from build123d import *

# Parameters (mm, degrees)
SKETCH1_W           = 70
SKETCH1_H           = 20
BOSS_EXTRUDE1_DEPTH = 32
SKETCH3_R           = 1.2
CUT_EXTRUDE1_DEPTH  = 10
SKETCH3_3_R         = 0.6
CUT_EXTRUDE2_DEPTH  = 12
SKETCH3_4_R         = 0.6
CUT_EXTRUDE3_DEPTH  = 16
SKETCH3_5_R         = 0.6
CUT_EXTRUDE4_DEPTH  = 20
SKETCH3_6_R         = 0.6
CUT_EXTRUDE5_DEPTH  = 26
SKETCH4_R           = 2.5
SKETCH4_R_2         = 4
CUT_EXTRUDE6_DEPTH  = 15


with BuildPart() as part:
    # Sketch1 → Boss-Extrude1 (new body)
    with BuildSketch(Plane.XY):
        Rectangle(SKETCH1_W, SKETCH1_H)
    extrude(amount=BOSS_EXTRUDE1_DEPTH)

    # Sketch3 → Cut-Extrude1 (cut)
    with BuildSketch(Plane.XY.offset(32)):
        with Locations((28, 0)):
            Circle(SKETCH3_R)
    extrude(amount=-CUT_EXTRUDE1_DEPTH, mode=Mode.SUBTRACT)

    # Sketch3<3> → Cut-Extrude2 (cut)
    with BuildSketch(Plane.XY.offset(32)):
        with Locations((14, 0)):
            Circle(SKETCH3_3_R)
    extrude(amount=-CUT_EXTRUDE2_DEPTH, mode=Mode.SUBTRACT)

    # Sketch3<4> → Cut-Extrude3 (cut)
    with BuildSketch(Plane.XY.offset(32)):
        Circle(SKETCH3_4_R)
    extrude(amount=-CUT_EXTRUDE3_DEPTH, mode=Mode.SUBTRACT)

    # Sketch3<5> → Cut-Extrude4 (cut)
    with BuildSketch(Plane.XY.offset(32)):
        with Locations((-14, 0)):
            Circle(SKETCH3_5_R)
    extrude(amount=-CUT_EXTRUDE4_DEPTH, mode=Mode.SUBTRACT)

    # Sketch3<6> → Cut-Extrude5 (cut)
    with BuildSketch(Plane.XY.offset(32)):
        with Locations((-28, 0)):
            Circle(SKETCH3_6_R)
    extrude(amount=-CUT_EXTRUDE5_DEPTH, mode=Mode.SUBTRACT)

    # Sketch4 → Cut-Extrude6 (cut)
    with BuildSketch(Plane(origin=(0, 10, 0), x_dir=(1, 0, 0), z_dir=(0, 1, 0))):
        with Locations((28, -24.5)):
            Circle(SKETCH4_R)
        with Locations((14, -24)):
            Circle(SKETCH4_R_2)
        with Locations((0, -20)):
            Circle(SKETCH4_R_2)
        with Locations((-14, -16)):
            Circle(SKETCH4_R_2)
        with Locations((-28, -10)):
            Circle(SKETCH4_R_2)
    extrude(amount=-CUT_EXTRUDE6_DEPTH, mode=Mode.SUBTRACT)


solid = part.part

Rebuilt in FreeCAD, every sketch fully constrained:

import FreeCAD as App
import Part
import Sketcher
Q = App.Units.Quantity

doc = App.newDocument("Part")
params = doc.addObject("Spreadsheet::Sheet", "Params")
for row, (alias, value) in enumerate([
    ("sketch1_width", "70 mm"),
    ("sketch1_height", "20 mm"),
    ("pad1_length", "32 mm"),
    ("sketch2_diameter", "2.4 mm"),
    ("pocket1_length", "10 mm"),
    ("sketch3_diameter", "1.2 mm"),
    ("pocket2_length", "12 mm"),
    ("sketch4_diameter", "1.2 mm"),
    ("pocket3_length", "16 mm"),
    ("sketch5_diameter", "1.2 mm"),
    ("pocket4_length", "20 mm"),
    ("sketch6_diameter", "1.2 mm"),
    ("pocket5_length", "26 mm"),
    ("sketch7_diameter", "5 mm"),
    ("sketch7_diameter2", "8 mm"),
    ("pocket6_length", "15 mm"),
], start=1):
    params.set(f"A{row}", alias)
    params.set(f"B{row}", "=" + value)
    params.setAlias(f"B{row}", alias)

body = doc.addObject("PartDesign::Body", "Body")

# Sketch on XY plane
sketch1 = body.newObject("Sketcher::SketchObject", "Sketch")
sketch1.AttachmentSupport = (doc.getObject("XY_Plane"), [""])
sketch1.MapMode = "FlatFace"
sketch1.addGeometry([
    Part.LineSegment(App.Vector(-35, 10, 0), App.Vector(-35, -10, 0)),
    Part.LineSegment(App.Vector(-35, -10, 0), App.Vector(35, -10, 0)),
    Part.LineSegment(App.Vector(35, -10, 0), App.Vector(35, 10, 0)),
    Part.LineSegment(App.Vector(35, 10, 0), App.Vector(-35, 10, 0)),
], False)
sketch1.addConstraint([
    Sketcher.Constraint("Coincident", 0, 2, 1, 1),
    Sketcher.Constraint("Coincident", 1, 2, 2, 1),
    Sketcher.Constraint("Coincident", 2, 2, 3, 1),
    Sketcher.Constraint("Coincident", 3, 2, 0, 1),
    Sketcher.Constraint("Vertical", 0),
    Sketcher.Constraint("Horizontal", 1),
    Sketcher.Constraint("Vertical", 2),
    Sketcher.Constraint("Horizontal", 3),
    Sketcher.Constraint("Symmetric", 0, 2, 2, 2, -1, 1),
    Sketcher.Constraint("DistanceX", 1, 1, 1, 2, Q("70 mm")),
    Sketcher.Constraint("DistanceY", 0, 2, 0, 1, Q("20 mm")),
])
sketch1.setExpression("Constraints[9]", "Params.sketch1_width")
sketch1.setExpression("Constraints[10]", "Params.sketch1_height")
pad1 = body.newObject("PartDesign::Pad", "Pad")
pad1.Profile = sketch1
pad1.setExpression("Length", "Params.pad1_length")

# Sketch on XY plane
sketch2 = body.newObject("Sketcher::SketchObject", "Sketch001")
sketch2.AttachmentSupport = (doc.getObject("XY_Plane"), [""])
sketch2.MapMode = "FlatFace"
sketch2.AttachmentOffset = App.Placement(App.Vector(0, 0, 32), App.Rotation())
sketch2.addGeometry(Part.Circle(App.Vector(28, 0, 0), App.Vector(0, 0, 1), 1.2), False)
sketch2.addConstraint([
    Sketcher.Constraint("PointOnObject", 0, 3, -1),
    Sketcher.Constraint("Diameter", 0, Q("2.4 mm")),
    Sketcher.Constraint("DistanceX", -1, 1, 0, 3, Q("28 mm")),
])
sketch2.setExpression("Constraints[1]", "Params.sketch2_diameter")
pocket1 = body.newObject("PartDesign::Pocket", "Pocket")
pocket1.Profile = sketch2
pocket1.setExpression("Length", "Params.pocket1_length")

# Sketch on XY plane
sketch3 = body.newObject("Sketcher::SketchObject", "Sketch002")
sketch3.AttachmentSupport = (doc.getObject("XY_Plane"), [""])
sketch3.MapMode = "FlatFace"
sketch3.AttachmentOffset = App.Placement(App.Vector(0, 0, 32), App.Rotation())
sketch3.addGeometry(Part.Circle(App.Vector(14, 0, 0), App.Vector(0, 0, 1), 0.6), False)
sketch3.addConstraint([
    Sketcher.Constraint("PointOnObject", 0, 3, -1),
    Sketcher.Constraint("Diameter", 0, Q("1.2 mm")),
    Sketcher.Constraint("DistanceX", -1, 1, 0, 3, Q("14 mm")),
])
sketch3.setExpression("Constraints[1]", "Params.sketch3_diameter")
pocket2 = body.newObject("PartDesign::Pocket", "Pocket001")
pocket2.Profile = sketch3
pocket2.setExpression("Length", "Params.pocket2_length")

# Sketch on XY plane
sketch4 = body.newObject("Sketcher::SketchObject", "Sketch003")
sketch4.AttachmentSupport = (doc.getObject("XY_Plane"), [""])
sketch4.MapMode = "FlatFace"
sketch4.AttachmentOffset = App.Placement(App.Vector(0, 0, 32), App.Rotation())
sketch4.addGeometry(Part.Circle(App.Vector(0, 0, 0), App.Vector(0, 0, 1), 0.6), False)
sketch4.addConstraint([
    Sketcher.Constraint("Coincident", 0, 3, -1, 1),
    Sketcher.Constraint("Diameter", 0, Q("1.2 mm")),
])
sketch4.setExpression("Constraints[1]", "Params.sketch4_diameter")
pocket3 = body.newObject("PartDesign::Pocket", "Pocket002")
pocket3.Profile = sketch4
pocket3.setExpression("Length", "Params.pocket3_length")

# Sketch on XY plane
sketch5 = body.newObject("Sketcher::SketchObject", "Sketch004")
sketch5.AttachmentSupport = (doc.getObject("XY_Plane"), [""])
sketch5.MapMode = "FlatFace"
sketch5.AttachmentOffset = App.Placement(App.Vector(0, 0, 32), App.Rotation())
sketch5.addGeometry(Part.Circle(App.Vector(-14, 0, 0), App.Vector(0, 0, 1), 0.6), False)
sketch5.addConstraint([
    Sketcher.Constraint("PointOnObject", 0, 3, -1),
    Sketcher.Constraint("Diameter", 0, Q("1.2 mm")),
    Sketcher.Constraint("DistanceX", 0, 3, -1, 1, Q("14 mm")),
])
sketch5.setExpression("Constraints[1]", "Params.sketch5_diameter")
pocket4 = body.newObject("PartDesign::Pocket", "Pocket003")
pocket4.Profile = sketch5
pocket4.setExpression("Length", "Params.pocket4_length")

# Sketch on XY plane
sketch6 = body.newObject("Sketcher::SketchObject", "Sketch005")
sketch6.AttachmentSupport = (doc.getObject("XY_Plane"), [""])
sketch6.MapMode = "FlatFace"
sketch6.AttachmentOffset = App.Placement(App.Vector(0, 0, 32), App.Rotation())
sketch6.addGeometry(Part.Circle(App.Vector(-28, 0, 0), App.Vector(0, 0, 1), 0.6), False)
sketch6.addConstraint([
    Sketcher.Constraint("PointOnObject", 0, 3, -1),
    Sketcher.Constraint("Diameter", 0, Q("1.2 mm")),
    Sketcher.Constraint("DistanceX", 0, 3, -1, 1, Q("28 mm")),
])
sketch6.setExpression("Constraints[1]", "Params.sketch6_diameter")
pocket5 = body.newObject("PartDesign::Pocket", "Pocket004")
pocket5.Profile = sketch6
pocket5.setExpression("Length", "Params.pocket5_length")

# Sketch on XZ plane
sketch7 = body.newObject("Sketcher::SketchObject", "Sketch006")
sketch7.AttachmentSupport = (doc.getObject("XZ_Plane"), [""])
sketch7.MapMode = "FlatFace"
sketch7.AttachmentOffset = App.Placement(App.Vector(0, 0, -10), App.Rotation())
sketch7.addGeometry([
    Part.Circle(App.Vector(28, 24.5, 0), App.Vector(0, 0, 1), 2.5),  # 0
    Part.Circle(App.Vector(14, 24, 0), App.Vector(0, 0, 1), 4),  # 1
    Part.Circle(App.Vector(0, 20, 0), App.Vector(0, 0, 1), 4),  # 2
    Part.Circle(App.Vector(-14, 16, 0), App.Vector(0, 0, 1), 4),  # 3
    Part.Circle(App.Vector(-28, 10, 0), App.Vector(0, 0, 1), 4),  # 4
], False)
sketch7.addConstraint([
    Sketcher.Constraint("Equal", 1, 2),
    Sketcher.Constraint("Equal", 2, 3),
    Sketcher.Constraint("Equal", 3, 4),
    Sketcher.Constraint("PointOnObject", 2, 3, -2),
    Sketcher.Constraint("Diameter", 0, Q("5 mm")),
    Sketcher.Constraint("Diameter", 1, Q("8 mm")),
    Sketcher.Constraint("DistanceX", -1, 1, 0, 3, Q("28 mm")),
    Sketcher.Constraint("DistanceX", -1, 1, 1, 3, Q("14 mm")),
    Sketcher.Constraint("DistanceY", -1, 1, 1, 3, Q("24 mm")),
    Sketcher.Constraint("DistanceY", -1, 1, 2, 3, Q("20 mm")),
    Sketcher.Constraint("DistanceX", 3, 3, -1, 1, Q("14 mm")),
    Sketcher.Constraint("DistanceY", -1, 1, 3, 3, Q("16 mm")),
    Sketcher.Constraint("DistanceX", 4, 3, -1, 1, Q("28 mm")),
    Sketcher.Constraint("DistanceY", -1, 1, 4, 3, Q("10 mm")),
    Sketcher.Constraint("DistanceY", -1, 1, 0, 3, Q("24.5 mm")),
])
sketch7.setExpression("Constraints[4]", "Params.sketch7_diameter")
sketch7.setExpression("Constraints[5]", "Params.sketch7_diameter2")
pocket6 = body.newObject("PartDesign::Pocket", "Pocket005")
pocket6.Profile = sketch7
pocket6.setExpression("Length", "Params.pocket6_length")
pocket6.Reversed = True

doc.recompute()
